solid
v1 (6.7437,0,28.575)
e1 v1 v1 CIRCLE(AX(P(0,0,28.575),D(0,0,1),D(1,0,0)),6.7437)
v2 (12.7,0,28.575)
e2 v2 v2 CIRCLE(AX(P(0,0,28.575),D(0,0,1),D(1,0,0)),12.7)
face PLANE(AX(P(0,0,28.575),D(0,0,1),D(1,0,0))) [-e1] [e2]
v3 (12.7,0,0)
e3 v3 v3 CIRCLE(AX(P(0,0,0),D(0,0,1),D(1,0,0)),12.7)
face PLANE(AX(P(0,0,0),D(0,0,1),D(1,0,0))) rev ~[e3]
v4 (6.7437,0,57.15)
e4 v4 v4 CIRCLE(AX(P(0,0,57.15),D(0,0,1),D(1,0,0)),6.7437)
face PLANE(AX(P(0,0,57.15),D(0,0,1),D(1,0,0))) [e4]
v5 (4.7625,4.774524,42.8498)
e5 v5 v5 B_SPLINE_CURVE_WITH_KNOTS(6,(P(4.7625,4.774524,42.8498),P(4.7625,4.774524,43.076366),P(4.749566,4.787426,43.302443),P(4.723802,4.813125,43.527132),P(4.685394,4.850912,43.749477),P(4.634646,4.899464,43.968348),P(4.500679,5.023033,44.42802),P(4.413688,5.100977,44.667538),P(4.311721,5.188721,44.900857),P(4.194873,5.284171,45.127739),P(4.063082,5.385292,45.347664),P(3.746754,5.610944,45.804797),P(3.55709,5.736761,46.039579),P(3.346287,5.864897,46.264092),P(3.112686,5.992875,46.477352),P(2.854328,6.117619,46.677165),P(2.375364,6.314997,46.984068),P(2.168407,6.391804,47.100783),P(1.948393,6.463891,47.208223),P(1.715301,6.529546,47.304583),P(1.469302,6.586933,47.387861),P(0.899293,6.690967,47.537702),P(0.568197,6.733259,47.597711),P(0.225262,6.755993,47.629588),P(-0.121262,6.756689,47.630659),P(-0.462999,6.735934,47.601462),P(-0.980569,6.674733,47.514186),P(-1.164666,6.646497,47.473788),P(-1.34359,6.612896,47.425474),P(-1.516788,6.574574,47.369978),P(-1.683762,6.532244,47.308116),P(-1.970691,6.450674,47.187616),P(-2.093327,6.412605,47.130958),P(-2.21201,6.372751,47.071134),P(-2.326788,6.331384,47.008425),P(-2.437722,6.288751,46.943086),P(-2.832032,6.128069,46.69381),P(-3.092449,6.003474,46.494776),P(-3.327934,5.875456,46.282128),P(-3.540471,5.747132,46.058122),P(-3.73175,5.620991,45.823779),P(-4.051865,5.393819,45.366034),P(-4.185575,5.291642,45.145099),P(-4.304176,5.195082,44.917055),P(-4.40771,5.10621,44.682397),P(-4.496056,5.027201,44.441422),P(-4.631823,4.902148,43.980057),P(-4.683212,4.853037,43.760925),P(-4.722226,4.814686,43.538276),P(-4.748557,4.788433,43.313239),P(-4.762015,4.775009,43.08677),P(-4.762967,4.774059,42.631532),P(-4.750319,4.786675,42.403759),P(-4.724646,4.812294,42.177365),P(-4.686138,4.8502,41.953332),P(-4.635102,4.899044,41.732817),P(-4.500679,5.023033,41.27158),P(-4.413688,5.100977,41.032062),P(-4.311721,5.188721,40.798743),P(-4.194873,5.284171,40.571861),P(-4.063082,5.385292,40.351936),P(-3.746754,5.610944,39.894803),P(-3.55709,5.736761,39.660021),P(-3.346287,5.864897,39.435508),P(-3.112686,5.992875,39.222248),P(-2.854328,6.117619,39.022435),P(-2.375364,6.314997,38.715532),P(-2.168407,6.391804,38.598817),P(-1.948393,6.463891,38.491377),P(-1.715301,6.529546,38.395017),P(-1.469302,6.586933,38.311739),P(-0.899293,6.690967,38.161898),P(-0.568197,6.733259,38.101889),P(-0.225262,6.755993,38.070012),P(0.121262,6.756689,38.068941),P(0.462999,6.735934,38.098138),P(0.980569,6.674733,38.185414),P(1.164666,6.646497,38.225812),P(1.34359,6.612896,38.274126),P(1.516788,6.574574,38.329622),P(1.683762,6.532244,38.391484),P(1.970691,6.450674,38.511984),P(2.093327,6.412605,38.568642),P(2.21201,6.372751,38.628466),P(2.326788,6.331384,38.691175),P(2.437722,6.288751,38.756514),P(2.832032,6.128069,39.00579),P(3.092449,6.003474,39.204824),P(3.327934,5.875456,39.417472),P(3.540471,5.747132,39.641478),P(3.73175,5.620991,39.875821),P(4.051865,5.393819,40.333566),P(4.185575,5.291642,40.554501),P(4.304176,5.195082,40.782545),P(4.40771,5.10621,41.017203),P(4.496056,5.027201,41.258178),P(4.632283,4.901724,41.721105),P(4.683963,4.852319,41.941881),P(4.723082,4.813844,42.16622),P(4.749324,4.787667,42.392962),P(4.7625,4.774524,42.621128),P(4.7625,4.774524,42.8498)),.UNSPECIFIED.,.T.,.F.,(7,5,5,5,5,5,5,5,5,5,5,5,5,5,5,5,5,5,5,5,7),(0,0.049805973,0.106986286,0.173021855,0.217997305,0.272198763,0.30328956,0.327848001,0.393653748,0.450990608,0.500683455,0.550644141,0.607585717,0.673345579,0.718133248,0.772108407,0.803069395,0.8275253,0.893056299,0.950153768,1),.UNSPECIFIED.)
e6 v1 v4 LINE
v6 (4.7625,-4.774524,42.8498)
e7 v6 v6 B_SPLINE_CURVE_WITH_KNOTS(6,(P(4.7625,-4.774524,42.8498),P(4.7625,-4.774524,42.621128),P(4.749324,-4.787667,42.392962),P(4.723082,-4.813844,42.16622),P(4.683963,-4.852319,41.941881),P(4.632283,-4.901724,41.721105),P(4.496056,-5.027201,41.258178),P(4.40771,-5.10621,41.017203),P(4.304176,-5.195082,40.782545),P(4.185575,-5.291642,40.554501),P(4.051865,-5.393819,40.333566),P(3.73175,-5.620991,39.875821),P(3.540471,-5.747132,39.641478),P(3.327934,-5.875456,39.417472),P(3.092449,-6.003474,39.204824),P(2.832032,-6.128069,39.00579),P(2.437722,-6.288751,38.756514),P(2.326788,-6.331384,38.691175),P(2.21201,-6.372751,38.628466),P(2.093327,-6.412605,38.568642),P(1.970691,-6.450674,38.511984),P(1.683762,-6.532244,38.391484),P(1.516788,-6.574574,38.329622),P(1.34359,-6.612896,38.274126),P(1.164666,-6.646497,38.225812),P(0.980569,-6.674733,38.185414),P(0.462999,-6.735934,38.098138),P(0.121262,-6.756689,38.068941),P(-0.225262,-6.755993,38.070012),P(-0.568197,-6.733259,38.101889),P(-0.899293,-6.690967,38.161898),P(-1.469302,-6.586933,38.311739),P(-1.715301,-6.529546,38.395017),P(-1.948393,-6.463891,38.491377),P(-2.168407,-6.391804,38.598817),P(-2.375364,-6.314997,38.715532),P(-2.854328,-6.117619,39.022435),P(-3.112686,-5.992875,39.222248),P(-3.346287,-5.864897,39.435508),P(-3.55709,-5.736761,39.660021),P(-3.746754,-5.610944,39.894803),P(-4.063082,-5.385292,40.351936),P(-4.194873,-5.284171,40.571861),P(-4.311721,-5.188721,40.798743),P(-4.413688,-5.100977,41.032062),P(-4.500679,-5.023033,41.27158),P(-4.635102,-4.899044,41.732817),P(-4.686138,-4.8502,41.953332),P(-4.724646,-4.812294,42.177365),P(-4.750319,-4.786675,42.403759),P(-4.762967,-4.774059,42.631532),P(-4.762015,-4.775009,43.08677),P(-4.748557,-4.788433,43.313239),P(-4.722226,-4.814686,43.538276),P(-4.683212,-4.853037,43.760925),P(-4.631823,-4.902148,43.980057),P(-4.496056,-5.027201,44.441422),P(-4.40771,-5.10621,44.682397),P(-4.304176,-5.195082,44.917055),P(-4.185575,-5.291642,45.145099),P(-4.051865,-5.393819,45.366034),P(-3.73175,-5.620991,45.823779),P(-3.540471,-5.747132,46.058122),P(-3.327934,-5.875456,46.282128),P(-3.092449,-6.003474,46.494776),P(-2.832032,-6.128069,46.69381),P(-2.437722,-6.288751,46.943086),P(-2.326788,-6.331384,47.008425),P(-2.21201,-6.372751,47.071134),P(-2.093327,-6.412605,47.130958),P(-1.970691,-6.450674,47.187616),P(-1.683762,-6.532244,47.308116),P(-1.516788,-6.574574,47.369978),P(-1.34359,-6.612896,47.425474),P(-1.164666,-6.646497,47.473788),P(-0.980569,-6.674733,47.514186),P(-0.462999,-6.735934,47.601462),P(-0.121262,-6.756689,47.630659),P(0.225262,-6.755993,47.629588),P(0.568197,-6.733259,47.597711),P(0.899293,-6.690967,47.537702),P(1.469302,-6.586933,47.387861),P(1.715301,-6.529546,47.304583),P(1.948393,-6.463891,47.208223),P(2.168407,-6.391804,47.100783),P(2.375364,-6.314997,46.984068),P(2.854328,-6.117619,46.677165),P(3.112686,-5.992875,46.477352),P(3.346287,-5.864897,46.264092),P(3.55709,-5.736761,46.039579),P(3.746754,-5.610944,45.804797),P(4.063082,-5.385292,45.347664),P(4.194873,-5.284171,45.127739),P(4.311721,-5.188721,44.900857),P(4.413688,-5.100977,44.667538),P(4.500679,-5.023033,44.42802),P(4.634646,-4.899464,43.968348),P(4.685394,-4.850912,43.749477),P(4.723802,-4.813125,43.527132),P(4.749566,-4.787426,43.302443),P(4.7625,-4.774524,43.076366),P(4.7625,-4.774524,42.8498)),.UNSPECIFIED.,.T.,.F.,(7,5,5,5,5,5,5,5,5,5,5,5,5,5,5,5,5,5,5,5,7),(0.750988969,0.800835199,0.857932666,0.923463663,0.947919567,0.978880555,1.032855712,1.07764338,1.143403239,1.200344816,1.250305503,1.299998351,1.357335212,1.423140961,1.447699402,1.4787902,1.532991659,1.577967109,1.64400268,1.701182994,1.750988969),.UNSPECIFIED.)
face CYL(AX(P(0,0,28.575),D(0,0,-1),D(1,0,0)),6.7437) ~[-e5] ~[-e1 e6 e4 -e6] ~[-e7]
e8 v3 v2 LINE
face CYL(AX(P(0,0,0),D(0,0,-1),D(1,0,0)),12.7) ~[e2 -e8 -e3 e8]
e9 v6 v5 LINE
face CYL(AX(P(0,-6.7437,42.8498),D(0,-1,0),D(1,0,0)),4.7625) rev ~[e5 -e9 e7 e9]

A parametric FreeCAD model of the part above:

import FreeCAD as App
import Part
import Sketcher

V = App.Vector
Q = App.Units.Quantity

doc = App.newDocument("Part")
params = doc.addObject("Spreadsheet::Sheet", "Params")
for row, (alias, value) in enumerate([
    ("sketch1_diameter", "1 in"),
    ("pad1_length", "1.125 in"),
    ("sketch2_diameter", "0.531 in"),
    ("pad2_length", "1.125 in"),
    ("sketch3_diameter", "0.375 in"),
], start=1):
    params.set(f"A{row}", alias)
    params.set(f"B{row}", "=" + value)
    params.setAlias(f"B{row}", alias)

body = doc.addObject("PartDesign::Body", "Body")

# Sketch on XY plane
sketch1 = doc.addObject("Sketcher::SketchObject", "Sketch")
body.addObject(sketch1)
sketch1.AttachmentSupport = (doc.XY_Plane, [""])
sketch1.MapMode = "FlatFace"
sketch1.addGeometry(Part.Circle(V(0, 0, 0), V(0, 0, 1), 13), False)
sketch1.addConstraint([
    Sketcher.Constraint("Coincident", 0, 3, -1, 1),
    Sketcher.Constraint("Diameter", 0, Q("1 in")),
])
sketch1.setExpression("Constraints[1]", "Params.sketch1_diameter")
pad1 = doc.addObject("PartDesign::Pad", "Pad")
body.addObject(pad1)
pad1.Profile = sketch1
pad1.setExpression("Length", "Params.pad1_length")

# Sketch on XY plane
sketch2 = doc.addObject("Sketcher::SketchObject", "Sketch001")
body.addObject(sketch2)
sketch2.AttachmentSupport = (doc.XY_Plane, [""])
sketch2.MapMode = "FlatFace"
sketch2.AttachmentOffset = App.Placement(V(0, 0, 1.125 * 25.4), App.Rotation())
sketch2.addGeometry(Part.Circle(V(0, 0, 0), V(0, 0, 1), 7), False)
sketch2.addConstraint([
    Sketcher.Constraint("Coincident", 0, 3, -1, 1),
    Sketcher.Constraint("Diameter", 0, Q("0.531 in")),
])
sketch2.setExpression("Constraints[1]", "Params.sketch2_diameter")
pad2 = doc.addObject("PartDesign::Pad", "Pad001")
body.addObject(pad2)
pad2.Profile = sketch2
pad2.setExpression("Length", "Params.pad2_length")

# Sketch on XZ plane
sketch3 = doc.addObject("Sketcher::SketchObject", "Sketch002")
body.addObject(sketch3)
sketch3.AttachmentSupport = (doc.XZ_Plane, [""])
sketch3.MapMode = "FlatFace"
sketch3.AttachmentOffset = App.Placement(V(0, 0, 0.2655 * 25.4), App.Rotation())
sketch3.addGeometry(Part.Circle(V(0, 42.8, 0), V(0, 0, 1), 4.8), False)
sketch3.addConstraint([
    Sketcher.Constraint("PointOnObject", 0, 3, -2),
    Sketcher.Constraint("Diameter", 0, Q("0.375 in")),
    Sketcher.Constraint("DistanceY", -1, 1, 0, 3, Q("1.687 in")),
])
sketch3.setExpression("Constraints[1]", "Params.sketch3_diameter")
pocket1 = doc.addObject("PartDesign::Pocket", "Pocket")
body.addObject(pocket1)
pocket1.Profile = sketch3
pocket1.Type = "ThroughAll"

doc.recompute()
